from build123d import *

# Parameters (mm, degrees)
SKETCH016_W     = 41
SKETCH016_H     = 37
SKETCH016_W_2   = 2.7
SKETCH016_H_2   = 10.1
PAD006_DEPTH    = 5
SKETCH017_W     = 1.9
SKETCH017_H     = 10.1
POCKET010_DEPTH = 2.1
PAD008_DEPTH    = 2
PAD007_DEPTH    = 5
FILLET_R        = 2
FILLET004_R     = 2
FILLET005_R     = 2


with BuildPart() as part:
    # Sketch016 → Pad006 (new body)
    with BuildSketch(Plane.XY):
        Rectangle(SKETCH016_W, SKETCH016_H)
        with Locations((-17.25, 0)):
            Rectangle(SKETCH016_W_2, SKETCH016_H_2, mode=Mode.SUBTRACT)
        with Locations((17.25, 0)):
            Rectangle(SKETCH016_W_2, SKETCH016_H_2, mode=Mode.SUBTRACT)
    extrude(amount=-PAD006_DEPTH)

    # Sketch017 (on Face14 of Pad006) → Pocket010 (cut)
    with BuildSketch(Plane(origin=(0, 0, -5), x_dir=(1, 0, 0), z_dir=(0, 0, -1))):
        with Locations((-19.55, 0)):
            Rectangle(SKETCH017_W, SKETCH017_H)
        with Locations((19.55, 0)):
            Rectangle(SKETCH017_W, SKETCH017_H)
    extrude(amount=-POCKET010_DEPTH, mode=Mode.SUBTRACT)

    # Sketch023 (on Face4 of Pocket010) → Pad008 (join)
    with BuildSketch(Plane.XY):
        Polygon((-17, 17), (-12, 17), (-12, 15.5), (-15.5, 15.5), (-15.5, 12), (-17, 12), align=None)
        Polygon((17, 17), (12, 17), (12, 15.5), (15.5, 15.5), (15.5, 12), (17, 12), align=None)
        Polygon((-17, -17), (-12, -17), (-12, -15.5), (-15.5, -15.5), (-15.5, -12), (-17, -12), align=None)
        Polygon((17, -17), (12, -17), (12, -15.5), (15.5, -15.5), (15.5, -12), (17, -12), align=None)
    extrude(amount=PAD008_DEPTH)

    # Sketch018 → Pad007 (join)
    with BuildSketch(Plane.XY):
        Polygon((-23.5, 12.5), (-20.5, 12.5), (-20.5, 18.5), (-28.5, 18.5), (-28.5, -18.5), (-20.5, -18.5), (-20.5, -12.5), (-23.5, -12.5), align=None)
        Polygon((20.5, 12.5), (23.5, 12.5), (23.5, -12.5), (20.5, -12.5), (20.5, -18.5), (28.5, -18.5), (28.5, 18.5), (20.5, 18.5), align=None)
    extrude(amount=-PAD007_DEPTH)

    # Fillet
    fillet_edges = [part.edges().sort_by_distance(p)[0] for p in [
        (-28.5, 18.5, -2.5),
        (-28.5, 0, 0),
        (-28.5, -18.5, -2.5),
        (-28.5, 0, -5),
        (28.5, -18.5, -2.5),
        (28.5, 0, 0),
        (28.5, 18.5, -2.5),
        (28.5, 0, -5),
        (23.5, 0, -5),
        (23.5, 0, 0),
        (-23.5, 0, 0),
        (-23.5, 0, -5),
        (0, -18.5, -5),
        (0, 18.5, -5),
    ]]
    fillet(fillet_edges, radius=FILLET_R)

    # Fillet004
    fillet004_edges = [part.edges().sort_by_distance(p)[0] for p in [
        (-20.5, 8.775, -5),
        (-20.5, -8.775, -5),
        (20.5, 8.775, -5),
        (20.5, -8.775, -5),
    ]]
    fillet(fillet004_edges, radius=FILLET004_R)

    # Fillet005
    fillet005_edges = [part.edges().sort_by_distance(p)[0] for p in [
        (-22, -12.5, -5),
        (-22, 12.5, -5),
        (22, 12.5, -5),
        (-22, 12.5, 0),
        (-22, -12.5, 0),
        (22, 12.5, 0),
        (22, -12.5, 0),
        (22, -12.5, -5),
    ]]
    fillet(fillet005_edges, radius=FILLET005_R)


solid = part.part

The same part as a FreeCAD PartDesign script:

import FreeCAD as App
import Part
import Sketcher
from FreeCAD import Vector
Q = App.Units.Quantity


def edges_at(feature, points):
    """Names of the edges that pass closest to the given points."""
    edges = feature.Shape.Edges
    near = lambda p: min(range(len(edges)), key=lambda i: edges[i].distToShape(Part.Vertex(*p))[0])
    return sorted({f"Edge{near(p) + 1}" for p in points})


def add_polygon(sketch, points):
    """Adds a closed chain of lines whose ends are joined by coincident constraints."""
    first, n = sketch.GeometryCount, len(points)
    for a, b in zip(points, points[1:] + points[:1]):
        sketch.addGeometry(Part.LineSegment(App.Vector(*a, 0), App.Vector(*b, 0)), False)
    for i in range(n):
        sketch.addConstraint(Sketcher.Constraint("Coincident", first + i, 2, first + (i + 1) % n, 1))

doc = App.newDocument("Part")
body = doc.addObject("PartDesign::Body", "Body")

sketch1 = body.newObject("Sketcher::SketchObject", "Sketch")
sketch1.AttachmentSupport = (doc.getObject("XY_Plane"), [""])
sketch1.MapMode = "FlatFace"
add_polygon(sketch1, [(-20.5, 18.5), (-20.5, -18.5), (20.5, -18.5), (20.5, 18.5)])
add_polygon(sketch1, [(-15.9, -5.05), (-18.6, -5.05), (-18.6, 5.05), (-15.9, 5.05)])
add_polygon(sketch1, [(18.6, -5.05), (15.9, -5.05), (15.9, 5.05), (18.6, 5.05)])
sketch1.addConstraint([
    Sketcher.Constraint("Vertical", 0),
    Sketcher.Constraint("Horizontal", 1),
    Sketcher.Constraint("Vertical", 2),
    Sketcher.Constraint("Horizontal", 3),
    Sketcher.Constraint("Horizontal", 4),
    Sketcher.Constraint("Vertical", 5),
    Sketcher.Constraint("Horizontal", 6),
    Sketcher.Constraint("Vertical", 7),
    Sketcher.Constraint("Horizontal", 8),
    Sketcher.Constraint("Vertical", 9),
    Sketcher.Constraint("Horizontal", 10),
    Sketcher.Constraint("Vertical", 11),
    Sketcher.Constraint("Symmetric", 0, 2, 2, 2, -1, 1),
    Sketcher.Constraint("Symmetric", 6, 2, 8, 2, -1, 1),
    Sketcher.Constraint("Symmetric", 4, 2, 10, 2, -1, 1),
    Sketcher.Constraint("Horizontal", 7, 2, 8, 2),
    Sketcher.Constraint("DistanceX", 1, 1, 1, 2, Q("41 mm")),
    Sketcher.Constraint("DistanceY", 0, 2, 0, 1, Q("37 mm")),
    Sketcher.Constraint("DistanceX", 4, 2, 4, 1, Q("2.7 mm")),
    Sketcher.Constraint("DistanceY", 5, 1, 5, 2, Q("10.1 mm")),
    Sketcher.Constraint("DistanceX", 4, 2, -1, 1, Q("18.6 mm")),
])
pad1 = body.newObject("PartDesign::Pad", "Pad")
pad1.Profile = sketch1
pad1.Length = 5
pad1.Reversed = True

sketch2 = body.newObject("Sketcher::SketchObject", "Sketch001")
sketch2.AttachmentSupport = (doc.getObject("XY_Plane"), [""])
sketch2.MapMode = "FlatFace"
sketch2.AttachmentOffset = App.Placement(Vector(0, 0, -5), App.Rotation())
add_polygon(sketch2, [(-20.5, -5.05), (-20.5, 5.05), (-18.6, 5.05), (-18.6, -5.05)])
add_polygon(sketch2, [(18.6, -5.05), (18.6, 5.05), (20.5, 5.05), (20.5, -5.05)])
sketch2.addConstraint([
    Sketcher.Constraint("Vertical", 0),
    Sketcher.Constraint("Horizontal", 1),
    Sketcher.Constraint("Vertical", 2),
    Sketcher.Constraint("Horizontal", 3),
    Sketcher.Constraint("Vertical", 4),
    Sketcher.Constraint("Horizontal", 5),
    Sketcher.Constraint("Vertical", 6),
    Sketcher.Constraint("Horizontal", 7),
    Sketcher.Constraint("Symmetric", 2, 2, 4, 2, -1, 1),
    Sketcher.Constraint("Symmetric", 0, 2, 6, 2, -1, 1),
    Sketcher.Constraint("Horizontal", 1, 2, 4, 2),
    Sketcher.Constraint("DistanceX", 1, 1, 1, 2, Q("1.9 mm")),
    Sketcher.Constraint("DistanceY", 0, 1, 0, 2, Q("10.1 mm")),
    Sketcher.Constraint("DistanceX", 0, 2, 5, 2, Q("41 mm")),
])
pocket1 = body.newObject("PartDesign::Pocket", "Pocket")
pocket1.Profile = sketch2
pocket1.Length = 2.1
pocket1.Reversed = True

sketch3 = body.newObject("Sketcher::SketchObject", "Sketch002")
sketch3.AttachmentSupport = (doc.getObject("XY_Plane"), [""])
sketch3.MapMode = "FlatFace"
add_polygon(sketch3, [(-12, 17), (-17, 17), (-17, 12), (-15.5, 12), (-15.5, 15.5), (-12, 15.5)])
add_polygon(sketch3, [(17, 17), (12, 17), (12, 15.5), (15.5, 15.5), (15.5, 12), (17, 12)])
add_polygon(sketch3, [(-17, -17), (-12, -17), (-12, -15.5), (-15.5, -15.5), (-15.5, -12), (-17, -12)])
add_polygon(sketch3, [(12, -17), (17, -17), (17, -12), (15.5, -12), (15.5, -15.5), (12, -15.5)])
sketch3.addConstraint([
    Sketcher.Constraint("Horizontal", 0),
    Sketcher.Constraint("Vertical", 1),
    Sketcher.Constraint("Horizontal", 2),
    Sketcher.Constraint("Vertical", 3),
    Sketcher.Constraint("Horizontal", 4),
    Sketcher.Constraint("Vertical", 5),
    Sketcher.Constraint("Horizontal", 6),
    Sketcher.Constraint("Vertical", 7),
    Sketcher.Constraint("Horizontal", 8),
    Sketcher.Constraint("Vertical", 9),
    Sketcher.Constraint("Horizontal", 10),
    Sketcher.Constraint("Vertical", 11),
    Sketcher.Constraint("Horizontal", 12),
    Sketcher.Constraint("Vertical", 13),
    Sketcher.Constraint("Horizontal", 14),
    Sketcher.Constraint("Vertical", 15),
    Sketcher.Constraint("Horizontal", 16),
    Sketcher.Constraint("Vertical", 17),
    Sketcher.Constraint("Horizontal", 18),
    Sketcher.Constraint("Vertical", 19),
    Sketcher.Constraint("Horizontal", 20),
    Sketcher.Constraint("Vertical", 21),
    Sketcher.Constraint("Horizontal", 22),
    Sketcher.Constraint("Vertical", 23),
    Sketcher.Constraint("Symmetric", 6, 2, 12, 2, -1, 1),
    Sketcher.Constraint("Symmetric", 8, 2, 14, 2, -1, 1),
    Sketcher.Constraint("Symmetric", 10, 2, 16, 2, -1, 1),
    Sketcher.Constraint("Symmetric", 0, 2, 18, 2, -1, 1),
    Sketcher.Constraint("Symmetric", 2, 2, 20, 2, -1, 1),
    Sketcher.Constraint("Symmetric", 4, 2, 22, 2, -1, 1),
    Sketcher.Constraint("Symmetric", 5, 2, 6, 2, -2),
    Sketcher.Constraint("Symmetric", 3, 2, 8, 2, -2),
    Sketcher.Constraint("Symmetric", 1, 2, 10, 2, -2),
    Sketcher.Constraint("Equal", 18, 1),
    Sketcher.Constraint("Equal", 22, 3),
    Sketcher.Constraint("DistanceX", 0, 2, 0, 1, Q("5 mm")),
    Sketcher.Constraint("DistanceX", 2, 1, 2, 2, Q("1.5 mm")),
    Sketcher.Constraint("DistanceX", 0, 2, -1, 1, Q("17 mm")),
    Sketcher.Constraint("DistanceY", -1, 1, 0, 2, Q("17 mm")),
])
pad2 = body.newObject("PartDesign::Pad", "Pad001")
pad2.Profile = sketch3
pad2.Length = 2

sketch4 = body.newObject("Sketcher::SketchObject", "Sketch003")
sketch4.AttachmentSupport = (doc.getObject("XY_Plane"), [""])
sketch4.MapMode = "FlatFace"
add_polygon(sketch4, [(-23.5, 12.5), (-20.5, 12.5), (-20.5, 18.5), (-28.5, 18.5), (-28.5, -18.5), (-20.5, -18.5), (-20.5, -12.5), (-23.5, -12.5)])
add_polygon(sketch4, [(20.5, 12.5), (23.5, 12.5), (23.5, -12.5), (20.5, -12.5), (20.5, -18.5), (28.5, -18.5), (28.5, 18.5), (20.5, 18.5)])
sketch4.addConstraint([
    Sketcher.Constraint("Horizontal", 0),
    Sketcher.Constraint("Vertical", 1),
    Sketcher.Constraint("Horizontal", 2),
    Sketcher.Constraint("Vertical", 3),
    Sketcher.Constraint("Horizontal", 4),
    Sketcher.Constraint("Vertical", 5),
    Sketcher.Constraint("Horizontal", 6),
    Sketcher.Constraint("Vertical", 7),
    Sketcher.Constraint("Horizontal", 8),
    Sketcher.Constraint("Vertical", 9),
    Sketcher.Constraint("Horizontal", 10),
    Sketcher.Constraint("Vertical", 11),
    Sketcher.Constraint("Horizontal", 12),
    Sketcher.Constraint("Vertical", 13),
    Sketcher.Constraint("Horizontal", 14),
    Sketcher.Constraint("Vertical", 15),
    Sketcher.Constraint("Symmetric", 6, 2, 8, 2, -1, 1),
    Sketcher.Constraint("Symmetric", 0, 2, 10, 2, -1, 1),
    Sketcher.Constraint("Symmetric", 2, 2, 12, 2, -1, 1),
    Sketcher.Constraint("Symmetric", 4, 2, 14, 2, -1, 1),
    Sketcher.Constraint("Symmetric", 5, 2, 10, 2, -2),
    Sketcher.Constraint("Horizontal", 4, 2, 11, 2),
    Sketcher.Constraint("DistanceX", 0, 1, 0, 2, Q("3 mm")),
    Sketcher.Constraint("DistanceX", 2, 2, 2, 1, Q("8 mm")),
    Sketcher.Constraint("DistanceY", 1, 1, 1, 2, Q("6 mm")),
    Sketcher.Constraint("DistanceY", 3, 2, 3, 1, Q("37 mm")),
    Sketcher.Constraint("DistanceX", 0, 2, 8, 2, Q("44 mm")),
])
pad3 = body.newObject("PartDesign::Pad", "Pad002")
pad3.Profile = sketch4
pad3.Length = 5
pad3.Reversed = True
doc.recompute()

fillet = body.newObject("PartDesign::Fillet", "Fillet")
fillet.Base = (pad3, edges_at(pad3, [
    (-28.5, 18.5, -2.5),
    (-28.5, 0, 0),
    (-28.5, -18.5, -2.5),
    (-28.5, 0, -5),
    (28.5, -18.5, -2.5),
    (28.5, 0, 0),
    (28.5, 18.5, -2.5),
    (28.5, 0, -5),
    (23.5, 0, -5),
    (23.5, 0, 0),
    (-23.5, 0, 0),
    (-23.5, 0, -5),
    (0, -18.5, -5),
    (0, 18.5, -5),
]))
fillet.Radius = 2
doc.recompute()

fillet2 = body.newObject("PartDesign::Fillet", "Fillet001")
fillet2.Base = (fillet, edges_at(fillet, [
    (-20.5, 8.775, -5),
    (-20.5, -8.775, -5),
    (20.5, 8.775, -5),
    (20.5, -8.775, -5),
]))
fillet2.Radius = 2
doc.recompute()

fillet3 = body.newObject("PartDesign::Fillet", "Fillet002")
fillet3.Base = (fillet2, edges_at(fillet2, [
    (-22, -12.5, -5),
    (-22, 12.5, -5),
    (22, 12.5, -5),
    (-23, 12.5, 0),
    (-23, -12.5, 0),
    (23, 12.5, 0),
    (23, -12.5, 0),
    (22, -12.5, -5),
]))
fillet3.Radius = 2

doc.recompute()
